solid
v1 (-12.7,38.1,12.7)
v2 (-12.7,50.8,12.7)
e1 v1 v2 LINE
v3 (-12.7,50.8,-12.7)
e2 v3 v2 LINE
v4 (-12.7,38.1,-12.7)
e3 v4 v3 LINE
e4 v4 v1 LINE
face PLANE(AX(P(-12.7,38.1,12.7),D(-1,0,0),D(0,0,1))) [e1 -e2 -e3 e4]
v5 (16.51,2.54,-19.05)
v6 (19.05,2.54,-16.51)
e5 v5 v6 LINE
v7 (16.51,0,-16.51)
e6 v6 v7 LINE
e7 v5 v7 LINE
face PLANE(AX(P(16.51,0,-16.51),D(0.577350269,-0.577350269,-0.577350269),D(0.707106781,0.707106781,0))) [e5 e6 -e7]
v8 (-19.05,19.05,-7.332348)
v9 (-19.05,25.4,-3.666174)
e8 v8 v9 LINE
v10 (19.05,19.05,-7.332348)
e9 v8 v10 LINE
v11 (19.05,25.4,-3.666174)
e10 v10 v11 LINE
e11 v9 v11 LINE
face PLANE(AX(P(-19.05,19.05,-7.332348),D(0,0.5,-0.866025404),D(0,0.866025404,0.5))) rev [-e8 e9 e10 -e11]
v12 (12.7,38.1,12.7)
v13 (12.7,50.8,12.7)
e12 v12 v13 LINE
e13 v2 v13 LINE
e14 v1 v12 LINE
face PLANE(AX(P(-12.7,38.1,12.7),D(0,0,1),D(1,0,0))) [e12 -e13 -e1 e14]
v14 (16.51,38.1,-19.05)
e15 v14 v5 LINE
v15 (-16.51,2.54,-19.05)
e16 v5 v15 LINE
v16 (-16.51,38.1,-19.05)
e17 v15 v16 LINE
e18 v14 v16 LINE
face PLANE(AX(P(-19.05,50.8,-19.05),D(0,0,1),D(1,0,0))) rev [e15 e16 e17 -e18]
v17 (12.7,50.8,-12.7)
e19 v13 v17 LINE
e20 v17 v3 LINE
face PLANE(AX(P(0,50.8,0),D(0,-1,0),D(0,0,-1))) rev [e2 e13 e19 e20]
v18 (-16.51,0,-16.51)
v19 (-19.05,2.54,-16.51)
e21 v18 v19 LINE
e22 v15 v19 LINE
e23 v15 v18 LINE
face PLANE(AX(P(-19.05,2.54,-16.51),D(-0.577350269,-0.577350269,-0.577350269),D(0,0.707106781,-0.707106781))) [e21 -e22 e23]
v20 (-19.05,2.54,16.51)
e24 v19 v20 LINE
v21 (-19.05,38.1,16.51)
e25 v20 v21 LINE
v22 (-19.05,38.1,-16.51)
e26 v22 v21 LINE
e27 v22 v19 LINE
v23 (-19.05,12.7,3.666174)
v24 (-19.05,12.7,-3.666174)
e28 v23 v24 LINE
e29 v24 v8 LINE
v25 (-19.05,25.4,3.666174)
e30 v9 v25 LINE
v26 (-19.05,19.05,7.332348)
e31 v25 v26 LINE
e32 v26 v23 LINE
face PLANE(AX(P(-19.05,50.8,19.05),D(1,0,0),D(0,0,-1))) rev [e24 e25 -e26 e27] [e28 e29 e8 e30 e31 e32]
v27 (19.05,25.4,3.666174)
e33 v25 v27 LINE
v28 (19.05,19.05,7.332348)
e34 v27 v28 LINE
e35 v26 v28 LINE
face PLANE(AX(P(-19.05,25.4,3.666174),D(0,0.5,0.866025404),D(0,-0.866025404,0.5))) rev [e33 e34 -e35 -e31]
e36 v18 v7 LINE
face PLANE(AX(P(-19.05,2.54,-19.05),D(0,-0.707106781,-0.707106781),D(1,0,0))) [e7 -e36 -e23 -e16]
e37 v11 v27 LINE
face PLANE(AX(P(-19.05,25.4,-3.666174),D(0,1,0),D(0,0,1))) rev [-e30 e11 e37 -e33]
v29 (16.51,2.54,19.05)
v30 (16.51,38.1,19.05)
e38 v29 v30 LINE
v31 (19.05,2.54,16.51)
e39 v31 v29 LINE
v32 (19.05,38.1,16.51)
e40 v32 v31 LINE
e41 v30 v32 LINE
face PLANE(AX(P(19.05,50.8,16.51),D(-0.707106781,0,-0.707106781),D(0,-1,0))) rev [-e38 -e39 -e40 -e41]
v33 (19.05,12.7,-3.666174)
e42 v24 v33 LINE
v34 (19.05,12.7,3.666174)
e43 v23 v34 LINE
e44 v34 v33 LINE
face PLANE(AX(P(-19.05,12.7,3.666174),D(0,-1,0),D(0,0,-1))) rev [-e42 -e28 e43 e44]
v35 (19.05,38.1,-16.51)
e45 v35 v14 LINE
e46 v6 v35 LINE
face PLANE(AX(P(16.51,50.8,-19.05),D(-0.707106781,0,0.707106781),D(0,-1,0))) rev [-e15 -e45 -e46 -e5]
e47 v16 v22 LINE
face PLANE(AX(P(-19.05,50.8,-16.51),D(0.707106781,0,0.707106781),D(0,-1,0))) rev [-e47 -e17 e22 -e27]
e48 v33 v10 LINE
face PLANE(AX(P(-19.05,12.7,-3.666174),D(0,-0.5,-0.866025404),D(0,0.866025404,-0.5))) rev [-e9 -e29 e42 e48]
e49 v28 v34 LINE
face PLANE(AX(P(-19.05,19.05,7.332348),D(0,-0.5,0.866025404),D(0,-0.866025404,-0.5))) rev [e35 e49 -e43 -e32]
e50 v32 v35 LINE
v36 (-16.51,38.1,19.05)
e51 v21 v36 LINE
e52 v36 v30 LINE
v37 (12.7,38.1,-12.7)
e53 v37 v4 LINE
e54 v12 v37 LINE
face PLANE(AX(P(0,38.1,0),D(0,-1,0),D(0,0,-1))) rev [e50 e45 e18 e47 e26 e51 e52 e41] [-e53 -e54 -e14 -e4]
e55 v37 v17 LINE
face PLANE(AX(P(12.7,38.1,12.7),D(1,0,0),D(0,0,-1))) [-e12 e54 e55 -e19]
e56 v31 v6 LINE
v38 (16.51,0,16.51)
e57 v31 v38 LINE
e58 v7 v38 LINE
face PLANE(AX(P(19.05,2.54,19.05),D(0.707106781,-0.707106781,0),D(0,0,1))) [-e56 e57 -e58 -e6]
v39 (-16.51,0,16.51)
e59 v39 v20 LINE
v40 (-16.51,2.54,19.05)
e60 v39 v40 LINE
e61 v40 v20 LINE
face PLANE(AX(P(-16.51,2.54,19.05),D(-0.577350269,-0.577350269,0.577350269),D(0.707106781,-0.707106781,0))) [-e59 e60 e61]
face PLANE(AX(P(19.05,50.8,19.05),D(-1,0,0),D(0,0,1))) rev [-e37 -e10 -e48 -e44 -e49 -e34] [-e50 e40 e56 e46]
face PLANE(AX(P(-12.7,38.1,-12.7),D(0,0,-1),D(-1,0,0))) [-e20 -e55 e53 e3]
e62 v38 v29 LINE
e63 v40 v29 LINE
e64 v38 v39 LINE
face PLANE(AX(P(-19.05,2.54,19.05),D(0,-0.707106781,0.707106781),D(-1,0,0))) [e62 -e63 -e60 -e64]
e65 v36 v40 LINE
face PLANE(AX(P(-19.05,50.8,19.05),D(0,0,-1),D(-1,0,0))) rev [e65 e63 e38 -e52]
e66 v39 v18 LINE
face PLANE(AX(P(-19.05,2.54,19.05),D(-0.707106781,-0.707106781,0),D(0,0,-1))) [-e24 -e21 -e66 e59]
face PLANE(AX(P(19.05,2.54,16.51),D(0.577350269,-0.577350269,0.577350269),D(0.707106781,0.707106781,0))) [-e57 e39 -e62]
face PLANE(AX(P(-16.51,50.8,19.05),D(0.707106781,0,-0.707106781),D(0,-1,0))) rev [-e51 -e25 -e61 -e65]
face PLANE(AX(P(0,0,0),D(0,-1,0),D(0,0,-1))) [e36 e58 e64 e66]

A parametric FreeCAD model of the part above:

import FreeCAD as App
import Part
import Sketcher
Q = App.Units.Quantity


def edges_at(feature, points):
    """Names of the edges that pass closest to the given points."""
    edges = feature.Shape.Edges
    near = lambda p: min(range(len(edges)), key=lambda i: edges[i].distToShape(Part.Vertex(*p))[0])
    return sorted({f"Edge{near(p) + 1}" for p in points})

doc = App.newDocument("Part")
body = doc.addObject("PartDesign::Body", "Body")

sketch1 = body.newObject("Sketcher::SketchObject", "Sketch")
sketch1.AttachmentSupport = (doc.getObject("XZ_Plane"), [""])
sketch1.MapMode = "FlatFace"
sketch1.addGeometry([
    Part.LineSegment(App.Vector(-19, -19, 0), App.Vector(-19, 19, 0)),
    Part.LineSegment(App.Vector(-19, 19, 0), App.Vector(19, 19, 0)),
    Part.LineSegment(App.Vector(19, 19, 0), App.Vector(19, -19, 0)),
    Part.LineSegment(App.Vector(19, -19, 0), App.Vector(-19, -19, 0)),
], False)
sketch1.addConstraint([
    Sketcher.Constraint("Coincident", 0, 2, 1, 1),
    Sketcher.Constraint("Coincident", 1, 2, 2, 1),
    Sketcher.Constraint("Coincident", 2, 2, 3, 1),
    Sketcher.Constraint("Coincident", 3, 2, 0, 1),
    Sketcher.Constraint("Vertical", 0),
    Sketcher.Constraint("Horizontal", 1),
    Sketcher.Constraint("Vertical", 2),
    Sketcher.Constraint("Horizontal", 3),
    Sketcher.Constraint("Symmetric", 0, 2, 2, 2, -1, 1),
    Sketcher.Constraint("Equal", 3, 0),
    Sketcher.Constraint("DistanceX", 1, 1, 1, 2, Q("1.5 in")),
])
pad1 = body.newObject("PartDesign::Pad", "Pad")
pad1.Profile = sketch1
pad1.Length = Q("2 in")
pad1.Reversed = True

sketch2 = body.newObject("Sketcher::SketchObject", "Sketch001")
sketch2.AttachmentSupport = (doc.getObject("XZ_Plane"), [""])
sketch2.MapMode = "FlatFace"
sketch2.AttachmentOffset = App.Placement(App.Vector(0, 0, -2 * 25.4), App.Rotation())
sketch2.addGeometry([
    Part.LineSegment(App.Vector(-19, -19, 0), App.Vector(-19, 19, 0)),
    Part.LineSegment(App.Vector(-19, 19, 0), App.Vector(19, 19, 0)),
    Part.LineSegment(App.Vector(19, 19, 0), App.Vector(19, -19, 0)),
    Part.LineSegment(App.Vector(19, -19, 0), App.Vector(-19, -19, 0)),
    Part.LineSegment(App.Vector(13, 13, 0), App.Vector(-13, 13, 0)),
    Part.LineSegment(App.Vector(-13, 13, 0), App.Vector(-13, -13, 0)),
    Part.LineSegment(App.Vector(-13, -13, 0), App.Vector(13, -13, 0)),
    Part.LineSegment(App.Vector(13, -13, 0), App.Vector(13, 13, 0)),
], False)
sketch2.addConstraint([
    Sketcher.Constraint("Coincident", 0, 2, 1, 1),
    Sketcher.Constraint("Coincident", 1, 2, 2, 1),
    Sketcher.Constraint("Coincident", 2, 2, 3, 1),
    Sketcher.Constraint("Coincident", 3, 2, 0, 1),
    Sketcher.Constraint("Coincident", 4, 2, 5, 1),
    Sketcher.Constraint("Coincident", 5, 2, 6, 1),
    Sketcher.Constraint("Coincident", 6, 2, 7, 1),
    Sketcher.Constraint("Coincident", 7, 2, 4, 1),
    Sketcher.Constraint("Vertical", 0),
    Sketcher.Constraint("Horizontal", 1),
    Sketcher.Constraint("Vertical", 2),
    Sketcher.Constraint("Horizontal", 3),
    Sketcher.Constraint("Horizontal", 4),
    Sketcher.Constraint("Vertical", 5),
    Sketcher.Constraint("Horizontal", 6),
    Sketcher.Constraint("Vertical", 7),
    Sketcher.Constraint("Symmetric", 0, 2, 2, 2, -1, 1),
    Sketcher.Constraint("Symmetric", 4, 2, 6, 2, -1, 1),
    Sketcher.Constraint("Equal", 3, 0),
    Sketcher.Constraint("Equal", 6, 5),
    Sketcher.Constraint("DistanceX", 4, 2, 4, 1, Q("1 in")),
    Sketcher.Constraint("DistanceX", 1, 1, 1, 2, Q("1.5 in")),
])
pocket1 = body.newObject("PartDesign::Pocket", "Pocket")
pocket1.Profile = sketch2
pocket1.Length = Q("0.5 in")
pocket1.Reversed = True

sketch3 = body.newObject("Sketcher::SketchObject", "Sketch002")
sketch3.AttachmentSupport = (doc.getObject("YZ_Plane"), [""])
sketch3.MapMode = "FlatFace"
sketch3.AttachmentOffset = App.Placement(App.Vector(0, 0, 0.75 * 25.4), App.Rotation())
sketch3.addGeometry([
    Part.LineSegment(App.Vector(19, 7, 0), App.Vector(13, 4, 0)),
    Part.LineSegment(App.Vector(13, 4, 0), App.Vector(13, -4, 0)),
    Part.LineSegment(App.Vector(13, -4, 0), App.Vector(19, -7, 0)),
    Part.LineSegment(App.Vector(19, -7, 0), App.Vector(25, -4, 0)),
    Part.LineSegment(App.Vector(25, -4, 0), App.Vector(25, 4, 0)),
    Part.LineSegment(App.Vector(25, 4, 0), App.Vector(19, 7, 0)),
], False)
sketch3.addConstraint([
    Sketcher.Constraint("Coincident", 0, 2, 1, 1),
    Sketcher.Constraint("Coincident", 1, 2, 2, 1),
    Sketcher.Constraint("Coincident", 2, 2, 3, 1),
    Sketcher.Constraint("Coincident", 3, 2, 4, 1),
    Sketcher.Constraint("Coincident", 4, 2, 5, 1),
    Sketcher.Constraint("Coincident", 5, 2, 0, 1),
    Sketcher.Constraint("Vertical", 1),
    Sketcher.Constraint("Vertical", 4),
    Sketcher.Constraint("Symmetric", 2, 2, 5, 2, -1),
    Sketcher.Constraint("Parallel", 0, 3),
    Sketcher.Constraint("Parallel", 2, 5),
    Sketcher.Constraint("Horizontal", 1, 2, 3, 2),
    Sketcher.Constraint("Horizontal", 0, 2, 4, 2),
    Sketcher.Constraint("DistanceX", -1, 1, 3, 2, Q("1 in")),
    Sketcher.Constraint("Angle", 0, Q("-150 deg")),
    Sketcher.Constraint("DistanceX", -1, 1, 0, 2, Q("0.5 in")),
    Sketcher.Constraint("DistanceY", 1, 2, 1, 1, 7.332348),
])
pocket2 = body.newObject("PartDesign::Pocket", "Pocket001")
pocket2.Profile = sketch3
pocket2.Type = "ThroughAll"
doc.recompute()

chamfer = body.newObject("PartDesign::Chamfer", "Chamfer")
chamfer.Base = (pocket2, edges_at(pocket2, [
    (19.05, 19.05, 19.05),
    (-19.05, 19.05, 19.05),
    (-19.05, 19.05, -19.05),
    (19.05, 19.05, -19.05),
    (0, 0, 19.05),
    (-19.05, 0, 0),
    (0, 0, -19.05),
    (19.05, 0, 0),
]))
chamfer.Size = Q("0.1 in")

doc.recompute()
